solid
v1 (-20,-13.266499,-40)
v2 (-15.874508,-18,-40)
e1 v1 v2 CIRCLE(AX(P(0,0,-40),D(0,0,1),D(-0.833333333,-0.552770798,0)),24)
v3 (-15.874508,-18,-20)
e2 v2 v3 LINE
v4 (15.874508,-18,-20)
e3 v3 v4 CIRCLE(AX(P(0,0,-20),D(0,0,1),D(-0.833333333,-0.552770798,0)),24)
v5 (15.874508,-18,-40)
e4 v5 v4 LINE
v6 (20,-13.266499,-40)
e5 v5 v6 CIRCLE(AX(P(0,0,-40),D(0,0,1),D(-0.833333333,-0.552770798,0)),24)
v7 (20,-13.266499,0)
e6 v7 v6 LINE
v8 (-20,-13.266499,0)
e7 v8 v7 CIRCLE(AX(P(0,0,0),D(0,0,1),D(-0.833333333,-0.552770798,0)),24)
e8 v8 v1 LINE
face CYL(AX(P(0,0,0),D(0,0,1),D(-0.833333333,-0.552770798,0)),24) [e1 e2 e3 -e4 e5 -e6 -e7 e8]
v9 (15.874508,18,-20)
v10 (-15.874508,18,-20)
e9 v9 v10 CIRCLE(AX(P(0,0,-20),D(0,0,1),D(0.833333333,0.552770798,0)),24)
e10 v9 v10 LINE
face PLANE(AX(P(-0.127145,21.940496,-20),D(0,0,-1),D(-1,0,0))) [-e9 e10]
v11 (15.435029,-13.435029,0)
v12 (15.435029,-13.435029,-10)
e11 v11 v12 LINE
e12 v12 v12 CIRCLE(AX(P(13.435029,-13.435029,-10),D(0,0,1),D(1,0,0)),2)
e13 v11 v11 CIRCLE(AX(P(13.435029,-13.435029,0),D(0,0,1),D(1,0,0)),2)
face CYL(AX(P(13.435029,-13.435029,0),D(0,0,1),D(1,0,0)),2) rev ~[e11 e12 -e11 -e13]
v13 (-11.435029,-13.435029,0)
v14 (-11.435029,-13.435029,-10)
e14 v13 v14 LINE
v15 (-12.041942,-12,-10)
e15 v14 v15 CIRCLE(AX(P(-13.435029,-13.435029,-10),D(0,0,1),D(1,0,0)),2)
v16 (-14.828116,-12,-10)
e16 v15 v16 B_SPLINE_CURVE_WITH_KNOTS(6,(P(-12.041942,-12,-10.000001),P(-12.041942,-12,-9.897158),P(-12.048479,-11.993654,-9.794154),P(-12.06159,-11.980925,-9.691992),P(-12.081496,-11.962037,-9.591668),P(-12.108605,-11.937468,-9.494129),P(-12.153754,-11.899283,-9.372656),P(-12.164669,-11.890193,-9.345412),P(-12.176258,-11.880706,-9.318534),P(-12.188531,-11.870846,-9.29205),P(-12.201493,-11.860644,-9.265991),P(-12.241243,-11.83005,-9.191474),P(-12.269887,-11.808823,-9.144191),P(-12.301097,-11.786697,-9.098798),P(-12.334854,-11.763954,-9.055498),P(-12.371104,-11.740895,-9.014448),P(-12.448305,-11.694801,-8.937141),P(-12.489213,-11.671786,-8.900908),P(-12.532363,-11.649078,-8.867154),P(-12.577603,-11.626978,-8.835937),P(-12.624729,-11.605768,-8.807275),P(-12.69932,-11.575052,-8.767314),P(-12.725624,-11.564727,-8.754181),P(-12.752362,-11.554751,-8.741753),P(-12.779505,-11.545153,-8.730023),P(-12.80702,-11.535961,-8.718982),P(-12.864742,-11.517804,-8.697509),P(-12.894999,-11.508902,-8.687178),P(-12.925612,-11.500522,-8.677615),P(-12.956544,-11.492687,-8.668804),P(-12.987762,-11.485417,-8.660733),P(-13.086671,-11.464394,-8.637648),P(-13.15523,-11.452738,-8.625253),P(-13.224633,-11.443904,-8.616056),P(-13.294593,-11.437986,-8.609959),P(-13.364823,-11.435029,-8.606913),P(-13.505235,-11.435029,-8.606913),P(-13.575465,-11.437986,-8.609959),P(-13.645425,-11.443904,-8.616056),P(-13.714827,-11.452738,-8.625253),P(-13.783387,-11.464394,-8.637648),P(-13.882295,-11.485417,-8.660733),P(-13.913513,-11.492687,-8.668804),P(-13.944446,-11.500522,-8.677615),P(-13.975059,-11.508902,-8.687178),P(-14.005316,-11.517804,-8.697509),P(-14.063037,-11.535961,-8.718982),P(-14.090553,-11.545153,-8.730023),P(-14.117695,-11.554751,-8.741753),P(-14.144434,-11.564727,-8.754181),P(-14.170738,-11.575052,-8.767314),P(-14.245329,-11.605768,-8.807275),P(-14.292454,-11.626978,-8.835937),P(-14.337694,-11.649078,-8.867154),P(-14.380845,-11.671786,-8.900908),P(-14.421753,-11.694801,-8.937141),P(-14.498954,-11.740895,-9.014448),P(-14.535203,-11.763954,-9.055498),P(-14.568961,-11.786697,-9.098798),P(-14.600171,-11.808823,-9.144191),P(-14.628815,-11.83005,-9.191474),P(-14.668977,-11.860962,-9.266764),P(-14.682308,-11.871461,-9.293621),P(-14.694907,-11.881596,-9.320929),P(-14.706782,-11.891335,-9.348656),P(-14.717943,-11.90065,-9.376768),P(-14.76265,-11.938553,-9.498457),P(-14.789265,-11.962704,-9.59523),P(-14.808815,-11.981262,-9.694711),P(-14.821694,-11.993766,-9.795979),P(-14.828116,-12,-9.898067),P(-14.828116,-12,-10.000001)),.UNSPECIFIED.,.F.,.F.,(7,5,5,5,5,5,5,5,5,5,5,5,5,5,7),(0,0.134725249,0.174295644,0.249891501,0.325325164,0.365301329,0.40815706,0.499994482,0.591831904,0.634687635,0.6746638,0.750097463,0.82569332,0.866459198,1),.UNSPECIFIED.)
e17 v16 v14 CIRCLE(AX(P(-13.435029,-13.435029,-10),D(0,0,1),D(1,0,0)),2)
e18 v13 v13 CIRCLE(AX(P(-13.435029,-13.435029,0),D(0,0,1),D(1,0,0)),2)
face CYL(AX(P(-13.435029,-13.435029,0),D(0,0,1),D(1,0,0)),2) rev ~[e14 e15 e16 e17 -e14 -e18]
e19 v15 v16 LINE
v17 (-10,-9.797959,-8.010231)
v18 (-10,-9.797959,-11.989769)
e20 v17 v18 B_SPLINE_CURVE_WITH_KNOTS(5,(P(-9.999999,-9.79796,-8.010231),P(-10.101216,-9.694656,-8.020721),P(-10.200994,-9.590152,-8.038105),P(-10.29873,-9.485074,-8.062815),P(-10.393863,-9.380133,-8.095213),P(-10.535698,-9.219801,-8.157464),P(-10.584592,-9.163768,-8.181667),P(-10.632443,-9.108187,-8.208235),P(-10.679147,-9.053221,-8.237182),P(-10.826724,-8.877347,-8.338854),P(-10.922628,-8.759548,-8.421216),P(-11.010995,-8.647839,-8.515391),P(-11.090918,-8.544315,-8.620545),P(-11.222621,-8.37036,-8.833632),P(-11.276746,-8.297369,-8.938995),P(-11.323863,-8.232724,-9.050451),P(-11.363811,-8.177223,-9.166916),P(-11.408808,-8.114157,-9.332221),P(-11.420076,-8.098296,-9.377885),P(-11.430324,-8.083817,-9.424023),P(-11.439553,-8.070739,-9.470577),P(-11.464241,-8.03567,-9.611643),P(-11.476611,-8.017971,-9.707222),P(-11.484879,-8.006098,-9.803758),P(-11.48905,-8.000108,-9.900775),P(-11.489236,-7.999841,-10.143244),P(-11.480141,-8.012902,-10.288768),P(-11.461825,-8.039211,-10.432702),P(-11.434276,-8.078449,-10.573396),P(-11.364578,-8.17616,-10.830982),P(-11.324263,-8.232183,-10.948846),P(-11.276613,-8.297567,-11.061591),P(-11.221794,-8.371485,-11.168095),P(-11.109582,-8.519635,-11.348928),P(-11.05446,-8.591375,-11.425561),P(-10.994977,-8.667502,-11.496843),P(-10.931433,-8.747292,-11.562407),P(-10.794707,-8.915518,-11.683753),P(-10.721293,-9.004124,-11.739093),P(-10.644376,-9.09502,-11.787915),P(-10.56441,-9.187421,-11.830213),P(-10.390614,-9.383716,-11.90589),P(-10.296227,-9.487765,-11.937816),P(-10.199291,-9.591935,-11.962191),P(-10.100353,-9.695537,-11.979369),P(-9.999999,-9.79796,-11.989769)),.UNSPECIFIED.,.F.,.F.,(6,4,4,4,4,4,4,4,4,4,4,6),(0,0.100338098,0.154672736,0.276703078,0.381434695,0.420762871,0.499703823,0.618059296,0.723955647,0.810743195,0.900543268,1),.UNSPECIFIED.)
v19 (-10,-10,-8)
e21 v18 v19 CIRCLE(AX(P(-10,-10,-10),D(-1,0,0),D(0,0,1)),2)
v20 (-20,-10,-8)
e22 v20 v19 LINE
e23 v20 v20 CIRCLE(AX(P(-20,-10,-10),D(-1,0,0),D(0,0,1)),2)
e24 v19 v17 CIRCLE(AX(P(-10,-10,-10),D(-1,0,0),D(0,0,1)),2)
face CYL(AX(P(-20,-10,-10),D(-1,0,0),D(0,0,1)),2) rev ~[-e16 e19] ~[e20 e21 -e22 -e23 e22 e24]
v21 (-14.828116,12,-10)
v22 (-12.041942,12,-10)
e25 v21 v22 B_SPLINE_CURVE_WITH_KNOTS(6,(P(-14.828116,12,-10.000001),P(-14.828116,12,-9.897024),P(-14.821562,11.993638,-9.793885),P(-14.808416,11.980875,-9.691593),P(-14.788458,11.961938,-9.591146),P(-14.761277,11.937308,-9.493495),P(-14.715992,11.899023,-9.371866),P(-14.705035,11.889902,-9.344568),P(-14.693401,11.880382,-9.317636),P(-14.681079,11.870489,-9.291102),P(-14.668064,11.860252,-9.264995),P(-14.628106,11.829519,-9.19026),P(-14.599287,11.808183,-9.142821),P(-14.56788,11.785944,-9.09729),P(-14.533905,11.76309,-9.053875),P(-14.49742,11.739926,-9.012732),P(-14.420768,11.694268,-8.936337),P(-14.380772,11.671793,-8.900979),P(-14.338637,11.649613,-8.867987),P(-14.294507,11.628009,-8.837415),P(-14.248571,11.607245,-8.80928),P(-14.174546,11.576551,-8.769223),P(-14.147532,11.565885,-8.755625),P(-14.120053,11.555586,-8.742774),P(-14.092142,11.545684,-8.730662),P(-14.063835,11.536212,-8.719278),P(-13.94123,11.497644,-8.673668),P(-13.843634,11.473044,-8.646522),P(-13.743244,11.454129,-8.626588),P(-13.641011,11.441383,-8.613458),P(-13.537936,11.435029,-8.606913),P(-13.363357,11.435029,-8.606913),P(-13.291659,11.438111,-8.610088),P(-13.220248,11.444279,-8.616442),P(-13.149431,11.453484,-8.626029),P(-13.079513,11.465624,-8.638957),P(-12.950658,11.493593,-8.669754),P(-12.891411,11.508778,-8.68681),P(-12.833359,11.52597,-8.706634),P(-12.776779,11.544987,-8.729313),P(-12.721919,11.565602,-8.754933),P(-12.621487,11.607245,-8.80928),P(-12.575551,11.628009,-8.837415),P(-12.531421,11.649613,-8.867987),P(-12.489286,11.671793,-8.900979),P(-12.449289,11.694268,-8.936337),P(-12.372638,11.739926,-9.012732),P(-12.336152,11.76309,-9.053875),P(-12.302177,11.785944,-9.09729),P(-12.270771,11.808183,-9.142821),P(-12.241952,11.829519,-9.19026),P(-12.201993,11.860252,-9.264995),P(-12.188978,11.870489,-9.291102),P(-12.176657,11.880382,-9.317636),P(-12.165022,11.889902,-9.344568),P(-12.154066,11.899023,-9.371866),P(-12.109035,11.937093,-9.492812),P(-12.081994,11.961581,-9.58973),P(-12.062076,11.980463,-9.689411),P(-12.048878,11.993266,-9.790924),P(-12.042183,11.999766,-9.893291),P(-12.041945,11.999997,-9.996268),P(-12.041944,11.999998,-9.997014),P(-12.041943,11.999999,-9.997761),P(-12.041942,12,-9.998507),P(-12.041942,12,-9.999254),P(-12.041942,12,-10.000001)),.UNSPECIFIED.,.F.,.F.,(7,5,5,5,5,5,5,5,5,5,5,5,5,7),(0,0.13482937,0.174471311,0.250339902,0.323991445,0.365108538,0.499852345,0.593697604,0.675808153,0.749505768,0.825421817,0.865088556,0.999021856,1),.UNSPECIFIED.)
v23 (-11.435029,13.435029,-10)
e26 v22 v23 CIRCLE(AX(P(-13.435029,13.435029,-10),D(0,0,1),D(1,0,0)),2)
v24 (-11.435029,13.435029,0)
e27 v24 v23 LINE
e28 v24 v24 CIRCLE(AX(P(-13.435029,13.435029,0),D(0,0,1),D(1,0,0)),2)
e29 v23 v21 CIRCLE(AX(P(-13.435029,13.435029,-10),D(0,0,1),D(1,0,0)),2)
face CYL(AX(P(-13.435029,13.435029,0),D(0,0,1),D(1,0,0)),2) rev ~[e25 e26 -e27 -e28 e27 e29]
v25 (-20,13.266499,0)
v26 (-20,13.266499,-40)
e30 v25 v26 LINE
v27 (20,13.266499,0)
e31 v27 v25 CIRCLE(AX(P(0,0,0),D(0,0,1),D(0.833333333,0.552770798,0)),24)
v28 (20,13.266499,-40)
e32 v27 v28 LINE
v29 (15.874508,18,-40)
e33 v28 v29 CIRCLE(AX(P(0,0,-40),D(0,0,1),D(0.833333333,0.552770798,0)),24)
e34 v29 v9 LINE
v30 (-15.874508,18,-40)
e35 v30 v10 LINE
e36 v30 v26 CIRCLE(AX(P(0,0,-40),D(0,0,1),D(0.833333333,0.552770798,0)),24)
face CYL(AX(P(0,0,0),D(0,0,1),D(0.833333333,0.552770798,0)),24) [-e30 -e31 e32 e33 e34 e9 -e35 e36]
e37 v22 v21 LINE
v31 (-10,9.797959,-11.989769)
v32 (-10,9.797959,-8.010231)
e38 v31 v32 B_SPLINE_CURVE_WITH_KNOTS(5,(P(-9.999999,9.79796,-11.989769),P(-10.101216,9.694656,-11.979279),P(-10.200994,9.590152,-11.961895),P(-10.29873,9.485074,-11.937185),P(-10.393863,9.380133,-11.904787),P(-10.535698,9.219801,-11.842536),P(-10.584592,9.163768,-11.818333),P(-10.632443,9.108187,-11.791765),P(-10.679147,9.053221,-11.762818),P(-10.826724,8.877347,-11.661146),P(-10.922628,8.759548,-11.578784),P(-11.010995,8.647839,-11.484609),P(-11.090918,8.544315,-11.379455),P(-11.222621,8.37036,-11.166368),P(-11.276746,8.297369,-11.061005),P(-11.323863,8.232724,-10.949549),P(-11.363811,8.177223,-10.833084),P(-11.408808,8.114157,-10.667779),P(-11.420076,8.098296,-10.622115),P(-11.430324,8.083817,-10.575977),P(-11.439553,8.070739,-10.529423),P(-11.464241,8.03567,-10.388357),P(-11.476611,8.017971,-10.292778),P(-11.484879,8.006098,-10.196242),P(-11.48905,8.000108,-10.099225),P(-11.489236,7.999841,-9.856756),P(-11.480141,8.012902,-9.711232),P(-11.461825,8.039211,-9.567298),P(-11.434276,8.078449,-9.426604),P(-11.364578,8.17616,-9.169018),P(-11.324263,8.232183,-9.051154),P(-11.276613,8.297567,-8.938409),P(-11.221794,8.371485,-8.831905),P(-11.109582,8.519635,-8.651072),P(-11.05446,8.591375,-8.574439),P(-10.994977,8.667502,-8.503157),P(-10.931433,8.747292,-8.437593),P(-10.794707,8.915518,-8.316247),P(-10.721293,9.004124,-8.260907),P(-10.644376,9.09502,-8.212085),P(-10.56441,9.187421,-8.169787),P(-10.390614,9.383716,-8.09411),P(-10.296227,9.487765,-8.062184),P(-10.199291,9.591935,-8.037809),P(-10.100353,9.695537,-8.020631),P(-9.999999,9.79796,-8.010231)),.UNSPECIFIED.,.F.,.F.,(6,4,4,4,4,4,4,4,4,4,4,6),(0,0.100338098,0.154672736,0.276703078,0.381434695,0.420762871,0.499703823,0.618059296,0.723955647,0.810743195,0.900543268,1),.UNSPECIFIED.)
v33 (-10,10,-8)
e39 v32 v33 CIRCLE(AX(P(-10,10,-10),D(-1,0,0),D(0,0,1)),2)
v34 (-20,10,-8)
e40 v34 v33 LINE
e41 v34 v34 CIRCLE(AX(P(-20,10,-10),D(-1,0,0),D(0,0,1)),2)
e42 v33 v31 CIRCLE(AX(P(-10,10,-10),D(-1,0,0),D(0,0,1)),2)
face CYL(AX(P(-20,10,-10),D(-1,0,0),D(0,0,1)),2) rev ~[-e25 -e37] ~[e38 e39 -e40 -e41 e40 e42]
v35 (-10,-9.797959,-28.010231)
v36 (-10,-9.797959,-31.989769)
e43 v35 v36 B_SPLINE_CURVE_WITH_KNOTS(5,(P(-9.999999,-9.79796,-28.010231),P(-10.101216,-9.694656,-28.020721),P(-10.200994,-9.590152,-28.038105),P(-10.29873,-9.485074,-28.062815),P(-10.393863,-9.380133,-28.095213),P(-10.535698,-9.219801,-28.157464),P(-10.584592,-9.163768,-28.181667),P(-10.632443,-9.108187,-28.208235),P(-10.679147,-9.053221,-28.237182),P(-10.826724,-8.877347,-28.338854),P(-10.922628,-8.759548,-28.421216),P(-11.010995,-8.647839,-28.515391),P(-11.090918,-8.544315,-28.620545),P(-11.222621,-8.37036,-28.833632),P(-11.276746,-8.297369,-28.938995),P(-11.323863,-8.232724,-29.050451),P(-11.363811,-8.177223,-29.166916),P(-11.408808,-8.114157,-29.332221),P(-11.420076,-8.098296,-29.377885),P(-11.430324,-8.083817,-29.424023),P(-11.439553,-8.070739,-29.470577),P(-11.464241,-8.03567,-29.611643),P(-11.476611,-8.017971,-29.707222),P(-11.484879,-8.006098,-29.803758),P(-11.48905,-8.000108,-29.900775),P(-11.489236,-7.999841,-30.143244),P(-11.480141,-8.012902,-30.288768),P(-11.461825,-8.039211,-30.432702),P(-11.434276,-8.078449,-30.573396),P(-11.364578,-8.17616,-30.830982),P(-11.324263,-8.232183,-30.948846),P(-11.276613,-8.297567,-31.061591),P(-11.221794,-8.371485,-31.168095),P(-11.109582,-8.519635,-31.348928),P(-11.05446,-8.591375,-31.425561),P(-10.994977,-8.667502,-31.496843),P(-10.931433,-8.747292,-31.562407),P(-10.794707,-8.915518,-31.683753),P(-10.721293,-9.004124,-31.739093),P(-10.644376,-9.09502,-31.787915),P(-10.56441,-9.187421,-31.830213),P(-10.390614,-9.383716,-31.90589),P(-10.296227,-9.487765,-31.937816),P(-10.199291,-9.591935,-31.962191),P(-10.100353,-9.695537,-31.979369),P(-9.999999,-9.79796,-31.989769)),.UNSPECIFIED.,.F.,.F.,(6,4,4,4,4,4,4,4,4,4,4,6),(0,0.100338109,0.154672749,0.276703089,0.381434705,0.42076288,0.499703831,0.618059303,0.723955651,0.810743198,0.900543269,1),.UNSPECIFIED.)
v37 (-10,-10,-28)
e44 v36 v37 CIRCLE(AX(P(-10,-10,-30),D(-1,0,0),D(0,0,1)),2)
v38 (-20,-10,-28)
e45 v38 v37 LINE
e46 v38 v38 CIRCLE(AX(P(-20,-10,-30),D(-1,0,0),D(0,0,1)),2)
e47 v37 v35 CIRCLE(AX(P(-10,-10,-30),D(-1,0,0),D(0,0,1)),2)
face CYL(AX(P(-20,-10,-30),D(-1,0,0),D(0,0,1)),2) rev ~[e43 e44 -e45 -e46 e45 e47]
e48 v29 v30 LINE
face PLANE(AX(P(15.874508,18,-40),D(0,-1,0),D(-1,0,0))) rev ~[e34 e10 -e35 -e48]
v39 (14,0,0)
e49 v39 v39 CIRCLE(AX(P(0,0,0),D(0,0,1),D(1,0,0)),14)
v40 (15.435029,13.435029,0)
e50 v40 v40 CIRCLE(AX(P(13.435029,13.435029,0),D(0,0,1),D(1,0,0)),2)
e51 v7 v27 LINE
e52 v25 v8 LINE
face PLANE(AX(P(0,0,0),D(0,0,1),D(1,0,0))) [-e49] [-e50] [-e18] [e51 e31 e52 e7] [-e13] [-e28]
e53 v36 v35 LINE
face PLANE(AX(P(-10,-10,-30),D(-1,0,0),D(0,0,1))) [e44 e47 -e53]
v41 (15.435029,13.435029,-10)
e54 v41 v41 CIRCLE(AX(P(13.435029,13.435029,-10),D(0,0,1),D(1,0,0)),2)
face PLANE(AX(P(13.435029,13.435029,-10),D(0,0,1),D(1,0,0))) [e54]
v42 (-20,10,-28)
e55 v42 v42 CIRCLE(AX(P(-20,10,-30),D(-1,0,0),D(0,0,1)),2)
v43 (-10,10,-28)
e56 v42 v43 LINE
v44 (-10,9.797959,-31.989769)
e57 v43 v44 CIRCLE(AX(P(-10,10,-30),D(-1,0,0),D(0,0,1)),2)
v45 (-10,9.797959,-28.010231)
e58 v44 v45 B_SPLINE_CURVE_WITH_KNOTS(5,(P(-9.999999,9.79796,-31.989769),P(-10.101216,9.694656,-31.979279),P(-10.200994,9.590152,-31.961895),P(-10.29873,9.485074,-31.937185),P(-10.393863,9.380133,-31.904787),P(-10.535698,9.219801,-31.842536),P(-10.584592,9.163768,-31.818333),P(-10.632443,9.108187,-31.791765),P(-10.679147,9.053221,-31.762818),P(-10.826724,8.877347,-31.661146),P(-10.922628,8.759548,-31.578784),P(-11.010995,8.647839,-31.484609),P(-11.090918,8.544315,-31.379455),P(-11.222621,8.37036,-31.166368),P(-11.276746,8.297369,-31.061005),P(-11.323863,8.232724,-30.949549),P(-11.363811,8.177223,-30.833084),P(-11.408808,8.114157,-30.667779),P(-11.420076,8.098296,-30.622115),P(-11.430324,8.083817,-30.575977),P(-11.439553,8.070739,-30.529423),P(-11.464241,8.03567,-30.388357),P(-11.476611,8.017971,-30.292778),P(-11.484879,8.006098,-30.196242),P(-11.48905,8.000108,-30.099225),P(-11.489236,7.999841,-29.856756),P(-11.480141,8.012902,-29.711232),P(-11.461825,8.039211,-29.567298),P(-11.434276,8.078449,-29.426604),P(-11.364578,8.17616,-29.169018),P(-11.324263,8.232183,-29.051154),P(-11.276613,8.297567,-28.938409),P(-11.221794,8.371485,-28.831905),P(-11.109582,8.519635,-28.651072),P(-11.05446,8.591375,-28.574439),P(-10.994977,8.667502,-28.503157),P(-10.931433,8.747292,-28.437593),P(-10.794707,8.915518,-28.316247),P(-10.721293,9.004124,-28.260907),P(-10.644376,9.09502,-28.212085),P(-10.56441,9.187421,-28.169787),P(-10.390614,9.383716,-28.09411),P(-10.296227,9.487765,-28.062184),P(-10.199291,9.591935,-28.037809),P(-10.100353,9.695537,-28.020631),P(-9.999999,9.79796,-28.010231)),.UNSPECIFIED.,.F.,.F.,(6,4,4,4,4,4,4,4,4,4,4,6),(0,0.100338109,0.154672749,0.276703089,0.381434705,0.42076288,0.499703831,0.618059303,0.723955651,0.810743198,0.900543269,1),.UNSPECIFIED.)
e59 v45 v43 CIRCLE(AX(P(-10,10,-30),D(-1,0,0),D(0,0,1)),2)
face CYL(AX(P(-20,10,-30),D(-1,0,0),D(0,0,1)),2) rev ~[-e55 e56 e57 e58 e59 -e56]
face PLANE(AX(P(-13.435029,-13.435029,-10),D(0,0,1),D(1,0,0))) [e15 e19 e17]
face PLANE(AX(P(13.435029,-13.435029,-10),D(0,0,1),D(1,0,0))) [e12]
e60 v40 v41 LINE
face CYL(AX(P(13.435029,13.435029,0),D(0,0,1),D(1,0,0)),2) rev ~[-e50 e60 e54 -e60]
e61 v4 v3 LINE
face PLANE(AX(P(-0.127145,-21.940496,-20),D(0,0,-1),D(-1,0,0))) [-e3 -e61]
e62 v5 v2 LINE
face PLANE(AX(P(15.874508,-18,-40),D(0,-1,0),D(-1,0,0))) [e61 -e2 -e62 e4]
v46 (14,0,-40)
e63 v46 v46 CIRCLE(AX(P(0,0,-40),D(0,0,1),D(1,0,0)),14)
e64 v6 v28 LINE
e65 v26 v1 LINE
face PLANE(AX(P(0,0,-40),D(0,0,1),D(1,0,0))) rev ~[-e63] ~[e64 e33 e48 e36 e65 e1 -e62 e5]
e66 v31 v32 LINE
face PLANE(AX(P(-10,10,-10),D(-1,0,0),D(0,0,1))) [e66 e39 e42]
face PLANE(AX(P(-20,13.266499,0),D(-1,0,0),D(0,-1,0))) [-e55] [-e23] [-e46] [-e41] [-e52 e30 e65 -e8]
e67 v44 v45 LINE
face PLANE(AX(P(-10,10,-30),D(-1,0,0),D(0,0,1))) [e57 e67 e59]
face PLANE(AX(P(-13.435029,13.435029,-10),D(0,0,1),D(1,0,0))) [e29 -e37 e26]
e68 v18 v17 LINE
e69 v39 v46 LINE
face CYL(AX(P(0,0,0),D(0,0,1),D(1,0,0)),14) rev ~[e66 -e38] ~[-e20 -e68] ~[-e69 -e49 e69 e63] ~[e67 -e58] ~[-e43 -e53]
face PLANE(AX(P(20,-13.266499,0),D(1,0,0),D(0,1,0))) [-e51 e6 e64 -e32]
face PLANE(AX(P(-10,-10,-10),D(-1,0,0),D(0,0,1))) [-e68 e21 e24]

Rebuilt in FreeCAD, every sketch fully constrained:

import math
import FreeCAD as App
import Part
import Sketcher
from FreeCAD import Vector
Q = App.Units.Quantity


def add_polygon(sketch, points):
    """Adds a closed chain of lines whose ends are joined by coincident constraints."""
    first, n = sketch.GeometryCount, len(points)
    for a, b in zip(points, points[1:] + points[:1]):
        sketch.addGeometry(Part.LineSegment(App.Vector(*a, 0), App.Vector(*b, 0)), False)
    for i in range(n):
        sketch.addConstraint(Sketcher.Constraint("Coincident", first + i, 2, first + (i + 1) % n, 1))

doc = App.newDocument("Part")
body = doc.addObject("PartDesign::Body", "Body")

# Sketch on XY plane
sketch1 = body.newObject("Sketcher::SketchObject", "Sketch")
sketch1.AttachmentSupport = (doc.getObject("XY_Plane"), [""])
sketch1.MapMode = "FlatFace"
sketch1.addGeometry([
    Part.LineSegment(Vector(20, -13, 0), Vector(20, 13, 0)),  # 0
    Part.ArcOfCircle(Part.Circle(Vector(0, 0, 0), Vector(0, 0, 1), 24), math.radians(34), math.radians(146)),  # 1
    Part.LineSegment(Vector(-20, 13, 0), Vector(-20, -13, 0)),  # 2
    Part.ArcOfCircle(Part.Circle(Vector(0, 0, 0), Vector(0, 0, 1), 24), math.radians(-146), math.radians(-34)),  # 3
    Part.Circle(Vector(0, 0, 0), Vector(0, 0, 1), 14),  # 4
], False)
sketch1.addConstraint([
    Sketcher.Constraint("Coincident", 0, 2, 1, 1),
    Sketcher.Constraint("Coincident", 1, 2, 2, 1),
    Sketcher.Constraint("Coincident", 2, 2, 3, 1),
    Sketcher.Constraint("Coincident", 3, 2, 0, 1),
    Sketcher.Constraint("Vertical", 0),
    Sketcher.Constraint("Vertical", 2),
    Sketcher.Constraint("Coincident", 1, 3, -1, 1),
    Sketcher.Constraint("Coincident", 3, 3, -1, 1),
    Sketcher.Constraint("Coincident", 4, 3, -1, 1),
    Sketcher.Constraint("Equal", 1, 3),
    Sketcher.Constraint("Horizontal", 0, 2, 1, 2),
    Sketcher.Constraint("Diameter", 4, Q("28 mm")),
    Sketcher.Constraint("Radius", 1, Q("24 mm")),
    Sketcher.Constraint("DistanceX", -1, 1, 0, 2, Q("20 mm")),
])
pad1 = body.newObject("PartDesign::Pad", "Pad")
pad1.Profile = sketch1
pad1.Length = 40
pad1.Reversed = True

# Sketch on YZ plane
sketch2 = body.newObject("Sketcher::SketchObject", "Sketch001")
sketch2.AttachmentSupport = (doc.getObject("YZ_Plane"), [""])
sketch2.MapMode = "FlatFace"
sketch2.AttachmentOffset = App.Placement(Vector(0, 0, -20), App.Rotation())
sketch2.addGeometry([
    Part.Circle(Vector(10, -10, 0), Vector(0, 0, 1), 2),
    Part.Circle(Vector(-10, -10, 0), Vector(0, 0, 1), 2),
    Part.Circle(Vector(-10, -30, 0), Vector(0, 0, 1), 2),
    Part.Circle(Vector(10, -30, 0), Vector(0, 0, 1), 2),
], False)
sketch2.addConstraint([
    Sketcher.Constraint("Equal", 0, 1),
    Sketcher.Constraint("Equal", 1, 2),
    Sketcher.Constraint("Equal", 2, 3),
    Sketcher.Constraint("Symmetric", 0, 3, 1, 3, -2),
    Sketcher.Constraint("Symmetric", 2, 3, 3, 3, -2),
    Sketcher.Constraint("Vertical", 1, 3, 2, 3),
    Sketcher.Constraint("Diameter", 0, Q("4 mm")),
    Sketcher.Constraint("DistanceX", -1, 1, 0, 3, Q("10 mm")),
    Sketcher.Constraint("DistanceY", 0, 3, -1, 1, Q("10 mm")),
    Sketcher.Constraint("DistanceY", 2, 3, -1, 1, Q("30 mm")),
])
pocket1 = body.newObject("PartDesign::Pocket", "Pocket")
pocket1.Profile = sketch2
pocket1.Length = 10
pocket1.Reversed = True

# Sketch on XY plane
sketch3 = body.newObject("Sketcher::SketchObject", "Sketch002")
sketch3.AttachmentSupport = (doc.getObject("XY_Plane"), [""])
sketch3.MapMode = "FlatFace"
sketch3.addGeometry([
    Part.Circle(Vector(-13.4, 13.4, 0), Vector(0, 0, 1), 2),
    Part.Circle(Vector(13.4, 13.4, 0), Vector(0, 0, 1), 2),
    Part.Circle(Vector(13.4, -13.4, 0), Vector(0, 0, 1), 2),
    Part.Circle(Vector(-13.4, -13.4, 0), Vector(0, 0, 1), 2),
], False)
sketch3.addConstraint([
    Sketcher.Constraint("Equal", 0, 1),
    Sketcher.Constraint("Equal", 1, 2),
    Sketcher.Constraint("Equal", 2, 3),
    Sketcher.Constraint("Symmetric", 0, 3, 2, 3, -1, 1),
    Sketcher.Constraint("Symmetric", 1, 3, 3, 3, -1, 1),
    Sketcher.Constraint("Symmetric", 0, 3, 1, 3, -2),
    Sketcher.Constraint("Diameter", 0, Q("4 mm")),
    Sketcher.Constraint("DistanceX", 0, 3, -1, 1, Q("13.435029 mm")),
    Sketcher.Constraint("DistanceY", -1, 1, 0, 3, Q("13.435029 mm")),
])
pocket2 = body.newObject("PartDesign::Pocket", "Pocket001")
pocket2.Profile = sketch3
pocket2.Length = 10

# Sketch on XY plane
sketch4 = body.newObject("Sketcher::SketchObject", "Sketch003")
sketch4.AttachmentSupport = (doc.getObject("XY_Plane"), [""])
sketch4.MapMode = "FlatFace"
sketch4.AttachmentOffset = App.Placement(Vector(0, 0, -40), App.Rotation())
add_polygon(sketch4, [(16, 26), (16, 18), (-16, 18), (-16, 26)])  # lines 0-3
add_polygon(sketch4, [(16, -18), (16, -26), (-16, -26), (-16, -18)])  # lines 4-7
sketch4.addConstraint([
    Sketcher.Constraint("Vertical", 0),
    Sketcher.Constraint("Horizontal", 1),
    Sketcher.Constraint("Vertical", 2),
    Sketcher.Constraint("Horizontal", 3),
    Sketcher.Constraint("Vertical", 4),
    Sketcher.Constraint("Horizontal", 5),
    Sketcher.Constraint("Vertical", 6),
    Sketcher.Constraint("Horizontal", 7),
    Sketcher.Constraint("Symmetric", 3, 2, 4, 2, -1),
    Sketcher.Constraint("Symmetric", 1, 2, 6, 2, -1),
    Sketcher.Constraint("DistanceY", -1, 1, 0, 2, Q("18 mm")),
    Sketcher.Constraint("DistanceY", 0, 2, 0, 1, Q("7.880992 mm")),
    Sketcher.Constraint("DistanceX", 1, 2, -1, 1, Q("16.128799 mm")),
    Sketcher.Constraint("DistanceX", 1, 2, 1, 1, Q("32.003307 mm")),
])
pocket3 = body.newObject("PartDesign::Pocket", "Pocket002")
pocket3.Profile = sketch4
pocket3.Length = 20
pocket3.Reversed = True

doc.recompute()
